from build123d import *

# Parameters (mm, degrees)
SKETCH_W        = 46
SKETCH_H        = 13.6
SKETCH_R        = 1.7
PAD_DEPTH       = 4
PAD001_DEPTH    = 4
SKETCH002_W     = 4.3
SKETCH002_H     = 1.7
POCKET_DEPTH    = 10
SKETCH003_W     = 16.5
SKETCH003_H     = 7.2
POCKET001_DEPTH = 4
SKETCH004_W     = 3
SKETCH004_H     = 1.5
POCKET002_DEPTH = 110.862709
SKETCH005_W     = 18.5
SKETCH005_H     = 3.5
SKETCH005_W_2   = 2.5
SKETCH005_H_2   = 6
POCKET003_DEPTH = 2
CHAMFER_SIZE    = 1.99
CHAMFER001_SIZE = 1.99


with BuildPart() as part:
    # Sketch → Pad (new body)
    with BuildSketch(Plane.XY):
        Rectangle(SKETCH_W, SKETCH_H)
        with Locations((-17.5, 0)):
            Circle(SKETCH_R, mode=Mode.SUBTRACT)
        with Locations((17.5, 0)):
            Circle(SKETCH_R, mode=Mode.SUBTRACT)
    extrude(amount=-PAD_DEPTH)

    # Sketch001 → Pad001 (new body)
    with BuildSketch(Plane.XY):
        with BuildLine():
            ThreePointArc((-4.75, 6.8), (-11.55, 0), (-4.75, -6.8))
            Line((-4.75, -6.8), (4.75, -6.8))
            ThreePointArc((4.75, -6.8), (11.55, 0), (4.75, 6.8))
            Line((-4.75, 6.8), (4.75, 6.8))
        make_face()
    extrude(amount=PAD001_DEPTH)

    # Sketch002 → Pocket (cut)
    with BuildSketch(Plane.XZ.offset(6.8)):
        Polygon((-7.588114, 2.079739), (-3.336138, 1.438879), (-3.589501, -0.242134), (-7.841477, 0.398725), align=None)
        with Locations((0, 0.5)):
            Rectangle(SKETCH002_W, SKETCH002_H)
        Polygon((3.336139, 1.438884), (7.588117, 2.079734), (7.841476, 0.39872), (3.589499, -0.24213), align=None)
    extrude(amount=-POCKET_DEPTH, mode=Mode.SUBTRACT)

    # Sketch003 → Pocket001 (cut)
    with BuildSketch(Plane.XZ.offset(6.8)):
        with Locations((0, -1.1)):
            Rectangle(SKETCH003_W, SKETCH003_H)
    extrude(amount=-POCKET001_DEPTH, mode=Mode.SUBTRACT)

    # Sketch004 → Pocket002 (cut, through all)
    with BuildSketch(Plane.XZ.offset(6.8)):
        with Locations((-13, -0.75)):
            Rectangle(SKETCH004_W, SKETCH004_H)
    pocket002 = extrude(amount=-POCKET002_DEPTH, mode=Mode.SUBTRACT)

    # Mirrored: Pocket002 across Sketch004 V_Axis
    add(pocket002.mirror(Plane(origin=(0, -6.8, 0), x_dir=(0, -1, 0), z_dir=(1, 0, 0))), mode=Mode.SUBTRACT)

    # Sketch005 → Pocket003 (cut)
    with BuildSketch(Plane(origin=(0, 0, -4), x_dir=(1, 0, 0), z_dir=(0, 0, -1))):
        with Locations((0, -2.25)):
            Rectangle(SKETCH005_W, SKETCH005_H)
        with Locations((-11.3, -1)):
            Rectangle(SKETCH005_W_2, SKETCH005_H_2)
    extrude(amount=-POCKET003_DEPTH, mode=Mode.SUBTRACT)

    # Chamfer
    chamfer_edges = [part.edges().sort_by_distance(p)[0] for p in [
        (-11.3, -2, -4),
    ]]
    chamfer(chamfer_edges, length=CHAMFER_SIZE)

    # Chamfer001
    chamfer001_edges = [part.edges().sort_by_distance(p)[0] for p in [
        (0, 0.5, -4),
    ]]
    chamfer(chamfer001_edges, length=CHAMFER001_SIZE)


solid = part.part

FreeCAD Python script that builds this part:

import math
import FreeCAD as App
import Part
import Sketcher


def edges_at(feature, points):
    """Names of the edges that pass closest to the given points."""
    edges = feature.Shape.Edges
    near = lambda p: min(range(len(edges)), key=lambda i: edges[i].distToShape(Part.Vertex(*p))[0])
    return sorted({f"Edge{near(p) + 1}" for p in points})


def add_polygon(sketch, points):
    """Adds a closed chain of lines whose ends are joined by coincident constraints."""
    first, n = sketch.GeometryCount, len(points)
    for a, b in zip(points, points[1:] + points[:1]):
        sketch.addGeometry(Part.LineSegment(App.Vector(*a, 0), App.Vector(*b, 0)), False)
    for i in range(n):
        sketch.addConstraint(Sketcher.Constraint("Coincident", first + i, 2, first + (i + 1) % n, 1))

doc = App.newDocument("Part")
body = doc.addObject("PartDesign::Body", "Body")

# Sketch on XY plane
sketch1 = body.newObject("Sketcher::SketchObject", "Sketch")
sketch1.AttachmentSupport = (doc.getObject("XY_Plane"), [""])
sketch1.MapMode = "FlatFace"
add_polygon(sketch1, [(-23, 6.8), (-23, -6.8), (23, -6.8), (23, 6.8)])  # lines 0-3
sketch1.addGeometry(Part.Circle(App.Vector(-17.5, 0, 0), App.Vector(0, 0, 1), 1.7), False)  # 4
sketch1.addGeometry(Part.Circle(App.Vector(17.5, 0, 0), App.Vector(0, 0, 1), 1.7), False)  # 5
sketch1.addConstraint(Sketcher.Constraint("Vertical", 0))
sketch1.addConstraint(Sketcher.Constraint("Horizontal", 1))
sketch1.addConstraint(Sketcher.Constraint("Vertical", 2))
sketch1.addConstraint(Sketcher.Constraint("Horizontal", 3))
sketch1.addConstraint(Sketcher.Constraint("Equal", 4, 5))
sketch1.addConstraint(Sketcher.Constraint("Symmetric", 4, 3, 5, 3, -1, 1))
sketch1.addConstraint(Sketcher.Constraint("Symmetric", 0, 2, 2, 2, -1, 1))
sketch1.addConstraint(Sketcher.Constraint("PointOnObject", 4, 3, -1))
sketch1.addConstraint(Sketcher.Constraint("Diameter", 4, 3.4))
sketch1.addConstraint(Sketcher.Constraint("DistanceX", 1, 1, 1, 2, 46.0))
sketch1.addConstraint(Sketcher.Constraint("DistanceY", 0, 2, 0, 1, 13.6))
sketch1.addConstraint(Sketcher.Constraint("DistanceX", 4, 3, 5, 3, 35.0))
pad1 = body.newObject("PartDesign::Pad", "Pad")
pad1.Profile = sketch1
pad1.Length = 4
pad1.Reversed = True

# Sketch on XY plane
sketch2 = body.newObject("Sketcher::SketchObject", "Sketch001")
sketch2.AttachmentSupport = (doc.getObject("XY_Plane"), [""])
sketch2.MapMode = "FlatFace"
sketch2.addGeometry(Part.ArcOfCircle(Part.Circle(App.Vector(-5, 0, 0), App.Vector(0, 0, 1), 7), math.radians(90), math.radians(270)), False)
sketch2.addGeometry(Part.LineSegment(App.Vector(-5, -7, 0), App.Vector(5, -7, 0)), False)
sketch2.addGeometry(Part.ArcOfCircle(Part.Circle(App.Vector(5, 0, 0), App.Vector(0, 0, 1), 7), math.radians(-90), math.radians(90)), False)
sketch2.addGeometry(Part.LineSegment(App.Vector(5, 7, 0), App.Vector(-5, 7, 0)), False)
sketch2.addConstraint(Sketcher.Constraint("Tangent", 0, 2, 1, 1))
sketch2.addConstraint(Sketcher.Constraint("Tangent", 1, 2, 2, 1))
sketch2.addConstraint(Sketcher.Constraint("Tangent", 2, 2, 3, 1))
sketch2.addConstraint(Sketcher.Constraint("Tangent", 3, 2, 0, 1))
sketch2.addConstraint(Sketcher.Constraint("Horizontal", 1))
sketch2.addConstraint(Sketcher.Constraint("Horizontal", 3))
sketch2.addConstraint(Sketcher.Constraint("Symmetric", 0, 3, 2, 3, -1, 1))
sketch2.addConstraint(Sketcher.Constraint("Radius", 0, 6.8))
sketch2.addConstraint(Sketcher.Constraint("DistanceX", 1, 1, 1, 2, 9.5))
pad2 = body.newObject("PartDesign::Pad", "Pad001")
pad2.Profile = sketch2
pad2.Length = 4

# Sketch on XZ plane
sketch3 = body.newObject("Sketcher::SketchObject", "Sketch002")
sketch3.AttachmentSupport = (doc.getObject("XZ_Plane"), [""])
sketch3.MapMode = "FlatFace"
sketch3.AttachmentOffset = App.Placement(App.Vector(0, 0, 6.8), App.Rotation())
add_polygon(sketch3, [(-3.3, 1.4), (-7.6, 2.1), (-7.8, 0.4), (-3.6, -0.2)])  # lines 0-3
add_polygon(sketch3, [(-2.1, 1.4), (-2.1, -0.3), (2.1, -0.3), (2.1, 1.4)])  # lines 4-7
add_polygon(sketch3, [(7.6, 2.1), (3.3, 1.4), (3.6, -0.2), (7.8, 0.4)])  # lines 8-11
sketch3.addConstraint(Sketcher.Constraint("Vertical", 4))
sketch3.addConstraint(Sketcher.Constraint("Horizontal", 5))
sketch3.addConstraint(Sketcher.Constraint("Vertical", 6))
sketch3.addConstraint(Sketcher.Constraint("Horizontal", 7))
sketch3.addConstraint(Sketcher.Constraint("Symmetric", 3, 2, 8, 2, -2))
sketch3.addConstraint(Sketcher.Constraint("Symmetric", 2, 2, 9, 2, -2))
sketch3.addConstraint(Sketcher.Constraint("Symmetric", 1, 2, 10, 2, -2))
sketch3.addConstraint(Sketcher.Constraint("Symmetric", 0, 2, 11, 2, -2))
sketch3.addConstraint(Sketcher.Constraint("Perpendicular", 0, 1))
sketch3.addConstraint(Sketcher.Constraint("Perpendicular", 1, 2))
sketch3.addConstraint(Sketcher.Constraint("Perpendicular", 2, 3))
sketch3.addConstraint(Sketcher.Constraint("DistanceX", 5, 1, 5, 2, 4.3))
sketch3.addConstraint(Sketcher.Constraint("DistanceY", 4, 2, 4, 1, 1.7))
sketch3.addConstraint(Sketcher.Constraint("Distance", 0, 4.3))
sketch3.addConstraint(Sketcher.Constraint("Distance", 1, 1.7))
sketch3.addConstraint(Sketcher.Constraint("DistanceX", 4, 2, -1, 1, 2.15))
sketch3.addConstraint(Sketcher.Constraint("DistanceY", 4, 2, -1, 1, 0.35))
sketch3.addConstraint(Sketcher.Constraint("DistanceX", 2, 2, -1, 1, 3.589501))
sketch3.addConstraint(Sketcher.Constraint("DistanceY", -1, 1, 0, 2, 2.079739))
sketch3.addConstraint(Sketcher.Constraint("DistanceX", 3, 2, -1, 1, 3.336138))
pocket1 = body.newObject("PartDesign::Pocket", "Pocket")
pocket1.Profile = sketch3
pocket1.Length = 10

# Sketch on XZ plane
sketch4 = body.newObject("Sketcher::SketchObject", "Sketch003")
sketch4.AttachmentSupport = (doc.getObject("XZ_Plane"), [""])
sketch4.MapMode = "FlatFace"
sketch4.AttachmentOffset = App.Placement(App.Vector(0, 0, 6.8), App.Rotation())
add_polygon(sketch4, [(-8, 2), (-8, -5), (8, -5), (8, 2)])  # lines 0-3
sketch4.addConstraint(Sketcher.Constraint("Vertical", 0))
sketch4.addConstraint(Sketcher.Constraint("Horizontal", 1))
sketch4.addConstraint(Sketcher.Constraint("Vertical", 2))
sketch4.addConstraint(Sketcher.Constraint("Horizontal", 3))
sketch4.addConstraint(Sketcher.Constraint("DistanceX", 1, 1, 1, 2, 16.5))
sketch4.addConstraint(Sketcher.Constraint("DistanceY", 0, 2, 0, 1, 7.2))
sketch4.addConstraint(Sketcher.Constraint("DistanceY", 0, 2, -1, 1, 4.7))
sketch4.addConstraint(Sketcher.Constraint("DistanceX", 0, 2, -1, 1, 8.25))
pocket2 = body.newObject("PartDesign::Pocket", "Pocket001")
pocket2.Profile = sketch4
pocket2.Length = 4

# Sketch on XZ plane
sketch5 = body.newObject("Sketcher::SketchObject", "Sketch004")
sketch5.AttachmentSupport = (doc.getObject("XZ_Plane"), [""])
sketch5.MapMode = "FlatFace"
sketch5.AttachmentOffset = App.Placement(App.Vector(0, 0, 6.8), App.Rotation())
add_polygon(sketch5, [(-14.5, 0), (-14.5, -1.5), (-11.5, -1.5), (-11.5, 0)])  # lines 0-3
sketch5.addConstraint(Sketcher.Constraint("Vertical", 0))
sketch5.addConstraint(Sketcher.Constraint("Horizontal", 1))
sketch5.addConstraint(Sketcher.Constraint("Vertical", 2))
sketch5.addConstraint(Sketcher.Constraint("Horizontal", 3))
sketch5.addConstraint(Sketcher.Constraint("PointOnObject", 2, 2, -1))
sketch5.addConstraint(Sketcher.Constraint("DistanceX", 1, 1, 1, 2, 3.0))
sketch5.addConstraint(Sketcher.Constraint("DistanceY", 0, 2, 0, 1, 1.5))
sketch5.addConstraint(Sketcher.Constraint("DistanceX", 0, 2, -1, 1, 14.5))
pocket3 = body.newObject("PartDesign::Pocket", "Pocket002")
pocket3.Profile = sketch5
pocket3.Type = "ThroughAll"
doc.recompute()

mirrored = body.newObject("PartDesign::Mirrored", "Mirrored")
mirrored.Originals = [pocket3]
mirrored.MirrorPlane = (doc.getObject("YZ_Plane"), [""])
body.Tip = mirrored

# Sketch on XY plane
sketch6 = body.newObject("Sketcher::SketchObject", "Sketch005")
sketch6.AttachmentSupport = (doc.getObject("XY_Plane"), [""])
sketch6.MapMode = "FlatFace"
sketch6.AttachmentOffset = App.Placement(App.Vector(0, 0, -4), App.Rotation())
add_polygon(sketch6, [(-9.2, 0.5), (-9.2, 4), (9.2, 4), (9.2, 0.5)])  # lines 0-3
add_polygon(sketch6, [(-12.6, -2), (-12.6, 4), (-10.1, 4), (-10.1, -2)])  # lines 4-7
sketch6.addConstraint(Sketcher.Constraint("Vertical", 0))
sketch6.addConstraint(Sketcher.Constraint("Horizontal", 1))
sketch6.addConstraint(Sketcher.Constraint("Vertical", 2))
sketch6.addConstraint(Sketcher.Constraint("Horizontal", 3))
sketch6.addConstraint(Sketcher.Constraint("Vertical", 4))
sketch6.addConstraint(Sketcher.Constraint("Horizontal", 5))
sketch6.addConstraint(Sketcher.Constraint("Vertical", 6))
sketch6.addConstraint(Sketcher.Constraint("Horizontal", 7))
sketch6.addConstraint(Sketcher.Constraint("Horizontal", 1, 2, 4, 2))
sketch6.addConstraint(Sketcher.Constraint("DistanceY", 4, 1, 4, 2, 6.0))
sketch6.addConstraint(Sketcher.Constraint("DistanceX", 1, 1, 1, 2, 18.5))
sketch6.addConstraint(Sketcher.Constraint("DistanceX", 5, 1, 5, 2, 2.5))
sketch6.addConstraint(Sketcher.Constraint("DistanceY", 0, 1, 0, 2, 3.5))
sketch6.addConstraint(Sketcher.Constraint("DistanceY", -1, 1, 0, 2, 4.0))
sketch6.addConstraint(Sketcher.Constraint("DistanceX", 4, 2, 0, 2, 3.3))
sketch6.addConstraint(Sketcher.Constraint("DistanceX", 0, 2, -1, 1, 9.25))
pocket4 = body.newObject("PartDesign::Pocket", "Pocket003")
pocket4.Profile = sketch6
pocket4.Length = 2
pocket4.Reversed = True
doc.recompute()

chamfer = body.newObject("PartDesign::Chamfer", "Chamfer")
chamfer.Base = (pocket4, edges_at(pocket4, [(-11.3, -2, -4)]))
chamfer.Size = 1.99
doc.recompute()

chamfer2 = body.newObject("PartDesign::Chamfer", "Chamfer001")
chamfer2.Base = (chamfer, edges_at(chamfer, [(0, 0.5, -4)]))
chamfer2.Size = 1.99

doc.recompute()
